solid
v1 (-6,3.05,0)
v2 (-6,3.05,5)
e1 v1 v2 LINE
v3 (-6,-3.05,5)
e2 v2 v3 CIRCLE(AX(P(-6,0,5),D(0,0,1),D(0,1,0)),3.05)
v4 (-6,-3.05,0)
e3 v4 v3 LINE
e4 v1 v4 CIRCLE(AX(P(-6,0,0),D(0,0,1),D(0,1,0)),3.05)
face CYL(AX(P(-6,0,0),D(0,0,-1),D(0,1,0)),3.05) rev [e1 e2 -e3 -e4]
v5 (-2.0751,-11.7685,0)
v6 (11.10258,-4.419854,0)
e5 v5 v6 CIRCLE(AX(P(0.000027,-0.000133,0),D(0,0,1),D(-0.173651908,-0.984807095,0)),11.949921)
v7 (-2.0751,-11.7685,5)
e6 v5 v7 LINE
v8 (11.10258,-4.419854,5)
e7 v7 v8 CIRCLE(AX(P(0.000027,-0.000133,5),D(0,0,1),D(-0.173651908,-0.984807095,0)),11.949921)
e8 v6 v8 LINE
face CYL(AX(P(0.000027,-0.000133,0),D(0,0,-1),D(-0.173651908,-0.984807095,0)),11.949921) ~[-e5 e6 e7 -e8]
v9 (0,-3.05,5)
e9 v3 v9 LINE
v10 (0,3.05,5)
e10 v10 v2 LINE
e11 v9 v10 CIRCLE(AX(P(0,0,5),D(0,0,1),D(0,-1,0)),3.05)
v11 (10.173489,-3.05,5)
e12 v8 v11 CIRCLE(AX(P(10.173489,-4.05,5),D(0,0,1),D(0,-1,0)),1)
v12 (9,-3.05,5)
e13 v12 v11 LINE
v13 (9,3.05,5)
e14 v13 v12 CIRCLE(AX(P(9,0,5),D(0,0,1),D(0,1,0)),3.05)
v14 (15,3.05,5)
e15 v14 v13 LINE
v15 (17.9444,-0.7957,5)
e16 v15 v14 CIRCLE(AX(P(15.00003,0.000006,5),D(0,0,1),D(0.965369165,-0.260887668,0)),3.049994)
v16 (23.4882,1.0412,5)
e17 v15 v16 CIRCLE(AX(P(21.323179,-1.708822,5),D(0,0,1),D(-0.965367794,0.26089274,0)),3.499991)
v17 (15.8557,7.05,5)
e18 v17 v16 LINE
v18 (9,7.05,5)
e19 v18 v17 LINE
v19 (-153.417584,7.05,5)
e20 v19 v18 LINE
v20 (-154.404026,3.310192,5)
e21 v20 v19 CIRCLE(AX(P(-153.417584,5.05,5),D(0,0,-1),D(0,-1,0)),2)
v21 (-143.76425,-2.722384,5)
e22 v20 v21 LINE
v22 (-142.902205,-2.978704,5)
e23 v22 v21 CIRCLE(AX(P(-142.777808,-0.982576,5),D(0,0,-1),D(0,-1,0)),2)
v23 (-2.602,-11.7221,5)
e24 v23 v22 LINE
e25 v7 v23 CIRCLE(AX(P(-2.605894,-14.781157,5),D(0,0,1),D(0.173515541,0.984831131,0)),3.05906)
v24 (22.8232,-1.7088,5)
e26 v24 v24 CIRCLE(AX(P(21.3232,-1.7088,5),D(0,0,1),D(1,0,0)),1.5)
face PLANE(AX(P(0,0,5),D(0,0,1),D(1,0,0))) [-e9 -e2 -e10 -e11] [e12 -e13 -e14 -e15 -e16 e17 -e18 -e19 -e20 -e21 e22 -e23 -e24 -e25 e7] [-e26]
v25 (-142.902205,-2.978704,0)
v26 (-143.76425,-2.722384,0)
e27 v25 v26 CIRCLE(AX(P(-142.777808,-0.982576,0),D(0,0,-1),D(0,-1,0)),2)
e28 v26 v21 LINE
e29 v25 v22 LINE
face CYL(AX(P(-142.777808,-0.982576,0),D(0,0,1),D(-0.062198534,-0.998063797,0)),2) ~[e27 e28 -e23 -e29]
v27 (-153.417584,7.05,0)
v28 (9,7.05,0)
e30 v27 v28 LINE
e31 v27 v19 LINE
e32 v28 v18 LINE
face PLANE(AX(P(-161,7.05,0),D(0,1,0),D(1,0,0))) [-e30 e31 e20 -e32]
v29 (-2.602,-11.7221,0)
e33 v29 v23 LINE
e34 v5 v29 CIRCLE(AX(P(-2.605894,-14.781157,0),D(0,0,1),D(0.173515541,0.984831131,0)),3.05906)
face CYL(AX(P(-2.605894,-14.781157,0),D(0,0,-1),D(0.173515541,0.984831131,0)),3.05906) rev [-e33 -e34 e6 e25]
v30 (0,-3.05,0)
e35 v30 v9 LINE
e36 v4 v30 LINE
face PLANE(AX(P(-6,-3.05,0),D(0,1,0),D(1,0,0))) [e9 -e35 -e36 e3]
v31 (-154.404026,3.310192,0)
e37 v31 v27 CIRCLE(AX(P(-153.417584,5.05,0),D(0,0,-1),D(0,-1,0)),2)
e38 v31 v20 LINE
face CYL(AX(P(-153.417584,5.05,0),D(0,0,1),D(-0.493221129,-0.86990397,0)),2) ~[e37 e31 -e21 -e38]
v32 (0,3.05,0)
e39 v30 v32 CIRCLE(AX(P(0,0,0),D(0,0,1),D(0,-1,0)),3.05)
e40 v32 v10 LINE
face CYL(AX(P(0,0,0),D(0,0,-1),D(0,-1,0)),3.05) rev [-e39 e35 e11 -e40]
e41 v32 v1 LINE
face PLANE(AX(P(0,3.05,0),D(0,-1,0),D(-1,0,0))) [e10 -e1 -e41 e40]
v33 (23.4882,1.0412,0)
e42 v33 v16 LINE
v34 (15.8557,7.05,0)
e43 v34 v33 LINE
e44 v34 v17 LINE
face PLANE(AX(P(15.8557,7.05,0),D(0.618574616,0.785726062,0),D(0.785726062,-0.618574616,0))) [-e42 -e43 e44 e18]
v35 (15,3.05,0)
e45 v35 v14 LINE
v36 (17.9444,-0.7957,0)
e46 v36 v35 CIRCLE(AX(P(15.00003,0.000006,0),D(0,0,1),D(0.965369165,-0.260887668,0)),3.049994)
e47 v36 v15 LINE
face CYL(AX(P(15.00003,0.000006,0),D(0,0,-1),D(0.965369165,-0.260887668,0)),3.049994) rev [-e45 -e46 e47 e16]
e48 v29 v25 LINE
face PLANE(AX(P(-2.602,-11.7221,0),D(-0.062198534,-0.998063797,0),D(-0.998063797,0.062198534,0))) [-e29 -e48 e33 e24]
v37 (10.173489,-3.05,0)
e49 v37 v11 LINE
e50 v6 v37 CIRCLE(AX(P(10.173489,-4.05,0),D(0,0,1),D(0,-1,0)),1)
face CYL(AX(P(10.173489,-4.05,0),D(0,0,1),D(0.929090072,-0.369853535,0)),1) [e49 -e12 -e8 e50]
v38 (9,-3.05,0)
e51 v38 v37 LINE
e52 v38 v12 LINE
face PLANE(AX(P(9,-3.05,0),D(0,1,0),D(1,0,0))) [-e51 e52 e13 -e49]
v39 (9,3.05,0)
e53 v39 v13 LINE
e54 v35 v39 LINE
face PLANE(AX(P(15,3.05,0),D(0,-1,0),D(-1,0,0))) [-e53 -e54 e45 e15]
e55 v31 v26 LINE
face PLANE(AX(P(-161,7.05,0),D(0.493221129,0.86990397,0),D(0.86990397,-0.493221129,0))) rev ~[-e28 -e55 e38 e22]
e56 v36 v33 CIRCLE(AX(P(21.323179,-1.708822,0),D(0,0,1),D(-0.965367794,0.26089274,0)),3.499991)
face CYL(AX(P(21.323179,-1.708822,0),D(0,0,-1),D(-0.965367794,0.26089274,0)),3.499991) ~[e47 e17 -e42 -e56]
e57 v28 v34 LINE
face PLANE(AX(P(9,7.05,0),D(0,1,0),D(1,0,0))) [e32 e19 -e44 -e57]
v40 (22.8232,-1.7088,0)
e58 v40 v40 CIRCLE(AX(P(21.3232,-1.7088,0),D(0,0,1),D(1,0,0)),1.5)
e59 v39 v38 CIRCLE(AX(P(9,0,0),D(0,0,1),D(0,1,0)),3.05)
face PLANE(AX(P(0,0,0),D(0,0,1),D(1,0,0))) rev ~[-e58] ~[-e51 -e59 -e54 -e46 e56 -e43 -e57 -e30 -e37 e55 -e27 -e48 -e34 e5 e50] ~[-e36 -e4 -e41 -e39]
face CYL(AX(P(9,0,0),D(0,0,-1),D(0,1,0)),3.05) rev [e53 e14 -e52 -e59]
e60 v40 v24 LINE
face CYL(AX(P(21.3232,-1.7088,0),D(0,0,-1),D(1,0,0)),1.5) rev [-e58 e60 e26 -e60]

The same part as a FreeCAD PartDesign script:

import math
import FreeCAD as App
import Part
import Sketcher
from FreeCAD import Vector


def edges_at(feature, points):
    """Names of the edges that pass closest to the given points."""
    edges = feature.Shape.Edges
    near = lambda p: min(range(len(edges)), key=lambda i: edges[i].distToShape(Part.Vertex(*p))[0])
    return sorted({f"Edge{near(p) + 1}" for p in points})

doc = App.newDocument("Part")
body = doc.addObject("PartDesign::Body", "Body")

# Sketch on XY plane
sketch1 = body.newObject("Sketcher::SketchObject", "Sketch")
sketch1.AttachmentSupport = (doc.getObject("XY_Plane"), [""])
sketch1.MapMode = "FlatFace"
sketch1.addGeometry(Part.ArcOfCircle(Part.Circle(Vector(-2.605894, -14.781157, 0), Vector(0, 0, 1), 3.05906), math.radians(80.007717), math.radians(89.927058)), False)
sketch1.addGeometry(Part.ArcOfCircle(Part.Circle(Vector(0, 0, 0), Vector(0, 0, 1), 11.950047), math.radians(-99.999981), math.radians(-14.787246)), False)
sketch1.addGeometry(Part.LineSegment(Vector(11.5542, -3.05, 0), Vector(9, -3.05, 0)), False)
sketch1.addGeometry(Part.ArcOfCircle(Part.Circle(Vector(9, 0, 0), Vector(0, 0, 1), 3.05), math.radians(90), math.radians(270)), False)
sketch1.addGeometry(Part.LineSegment(Vector(9, 3.05, 0), Vector(15, 3.05, 0)), False)
sketch1.addGeometry(Part.ArcOfCircle(Part.Circle(Vector(15, 0, 0), Vector(0, 0, 1), 3.050021), math.radians(-15.122488), math.radians(90)), False)
sketch1.addGeometry(Part.ArcOfCircle(Part.Circle(Vector(21.3232, -1.7088, 0), Vector(0, 0, 1), 3.500006), math.radians(164.877402), math.radians(411.787606)), False)
sketch1.addGeometry(Part.LineSegment(Vector(23.4882, 1.0412, 0), Vector(15.8557, 7.05, 0)), False)
sketch1.addGeometry(Part.LineSegment(Vector(15.8557, 7.05, 0), Vector(-161, 7.05, 0)), False)
sketch1.addGeometry(Part.LineSegment(Vector(-161, 7.05, 0), Vector(-143.3628, -2.95, 0)), False)
sketch1.addGeometry(Part.LineSegment(Vector(-143.3628, -2.95, 0), Vector(-2.602, -11.7221, 0)), False)
sketch1.addGeometry(Part.Circle(Vector(21.3232, -1.7088, 0), Vector(0, 0, 1), 1.5), False)
sketch1.addGeometry(Part.LineSegment(Vector(-6, 3.05, 0), Vector(0, 3.05, 0)), False)
sketch1.addGeometry(Part.ArcOfCircle(Part.Circle(Vector(0, 0, 0), Vector(0, 0, 1), 3.05), math.radians(-90), math.radians(90)), False)
sketch1.addGeometry(Part.LineSegment(Vector(0, -3.05, 0), Vector(-6, -3.05, 0)), False)
sketch1.addGeometry(Part.ArcOfCircle(Part.Circle(Vector(-6, 0, 0), Vector(0, 0, 1), 3.05), math.radians(90), math.radians(270)), False)
sketch1.addConstraint(Sketcher.Constraint("Tangent", 0, 1, 1, 1))
sketch1.addConstraint(Sketcher.Constraint("Coincident", 1, 2, 2, 1))
sketch1.addConstraint(Sketcher.Constraint("Tangent", 2, 2, 3, 2))
sketch1.addConstraint(Sketcher.Constraint("Tangent", 3, 1, 4, 1))
sketch1.addConstraint(Sketcher.Constraint("Tangent", 4, 2, 5, 2))
sketch1.addConstraint(Sketcher.Constraint("Tangent", 5, 1, 6, 1))
sketch1.addConstraint(Sketcher.Constraint("Tangent", 6, 2, 7, 1))
sketch1.addConstraint(Sketcher.Constraint("Coincident", 7, 2, 8, 1))
sketch1.addConstraint(Sketcher.Constraint("Coincident", 8, 2, 9, 1))
sketch1.addConstraint(Sketcher.Constraint("Coincident", 9, 2, 10, 1))
sketch1.addConstraint(Sketcher.Constraint("Coincident", 10, 2, 0, 2))
sketch1.addConstraint(Sketcher.Constraint("Tangent", 12, 2, 13, 2))
sketch1.addConstraint(Sketcher.Constraint("Tangent", 13, 1, 14, 1))
sketch1.addConstraint(Sketcher.Constraint("Tangent", 14, 2, 15, 2))
sketch1.addConstraint(Sketcher.Constraint("Tangent", 15, 1, 12, 1))
sketch1.addConstraint(Sketcher.Constraint("Horizontal", 2))
sketch1.addConstraint(Sketcher.Constraint("Horizontal", 4))
sketch1.addConstraint(Sketcher.Constraint("Horizontal", 8))
sketch1.addConstraint(Sketcher.Constraint("Horizontal", 12))
sketch1.addConstraint(Sketcher.Constraint("Horizontal", 14))
sketch1.addConstraint(Sketcher.Constraint("Coincident", 1, 3, -1, 1))
sketch1.addConstraint(Sketcher.Constraint("Coincident", 13, 3, -1, 1))
sketch1.addConstraint(Sketcher.Constraint("Coincident", 11, 3, 6, 3))
sketch1.addConstraint(Sketcher.Constraint("Equal", 3, 5))
sketch1.addConstraint(Sketcher.Constraint("Equal", 5, 13))
sketch1.addConstraint(Sketcher.Constraint("PointOnObject", 3, 3, -1))
sketch1.addConstraint(Sketcher.Constraint("Equal", 4, 12))
sketch1.addConstraint(Sketcher.Constraint("Diameter", 11, 3.0))
sketch1.addConstraint(Sketcher.Constraint("DistanceX", 4, 1, 4, 2, 6.0))
sketch1.addConstraint(Sketcher.Constraint("Radius", 3, 3.05))
sketch1.addConstraint(Sketcher.Constraint("DistanceX", -1, 1, 5, 3, 15.0))
sketch1.addConstraint(Sketcher.Constraint("DistanceY", 4, 2, 7, 2, 4.0))
sketch1.addConstraint(Sketcher.Constraint("DistanceY", 9, 2, 8, 2, 10.0))
sketch1.addConstraint(Sketcher.Constraint("Radius", 6, 3.5))
sketch1.addConstraint(Sketcher.Constraint("Radius", 1, 11.95))
sketch1.addConstraint(Sketcher.Constraint("DistanceX", 8, 2, -1, 1, 161.0))
sketch1.addConstraint(Sketcher.Constraint("Radius", 0, 3.059))
sketch1.addConstraint(Sketcher.Constraint("DistanceY", 6, 3, 6, 2, 2.75))
sketch1.addConstraint(Sketcher.Constraint("Distance", 7, 9.714))
sketch1.addConstraint(Sketcher.Constraint("Distance", 9, 20.275))
sketch1.addConstraint(Sketcher.Constraint("DistanceX", 0, 3, -1, 1, 2.606))
sketch1.addConstraint(Sketcher.Constraint("DistanceX", 10, 2, -1, 1, 2.602))
pad1 = body.newObject("PartDesign::Pad", "Pad")
pad1.Profile = sketch1
pad1.Length = 5
doc.recompute()

fillet = body.newObject("PartDesign::Fillet", "Fillet")
fillet.Base = (pad1, edges_at(pad1, [(-161, 7.05, 2.5), (-143.363, -2.95, 2.5)]))
fillet.Radius = 2
doc.recompute()

fillet2 = body.newObject("PartDesign::Fillet", "Fillet001")
fillet2.Base = (fillet, edges_at(fillet, [(11.554, -3.05, 2.5)]))
fillet2.Radius = 1

doc.recompute()
